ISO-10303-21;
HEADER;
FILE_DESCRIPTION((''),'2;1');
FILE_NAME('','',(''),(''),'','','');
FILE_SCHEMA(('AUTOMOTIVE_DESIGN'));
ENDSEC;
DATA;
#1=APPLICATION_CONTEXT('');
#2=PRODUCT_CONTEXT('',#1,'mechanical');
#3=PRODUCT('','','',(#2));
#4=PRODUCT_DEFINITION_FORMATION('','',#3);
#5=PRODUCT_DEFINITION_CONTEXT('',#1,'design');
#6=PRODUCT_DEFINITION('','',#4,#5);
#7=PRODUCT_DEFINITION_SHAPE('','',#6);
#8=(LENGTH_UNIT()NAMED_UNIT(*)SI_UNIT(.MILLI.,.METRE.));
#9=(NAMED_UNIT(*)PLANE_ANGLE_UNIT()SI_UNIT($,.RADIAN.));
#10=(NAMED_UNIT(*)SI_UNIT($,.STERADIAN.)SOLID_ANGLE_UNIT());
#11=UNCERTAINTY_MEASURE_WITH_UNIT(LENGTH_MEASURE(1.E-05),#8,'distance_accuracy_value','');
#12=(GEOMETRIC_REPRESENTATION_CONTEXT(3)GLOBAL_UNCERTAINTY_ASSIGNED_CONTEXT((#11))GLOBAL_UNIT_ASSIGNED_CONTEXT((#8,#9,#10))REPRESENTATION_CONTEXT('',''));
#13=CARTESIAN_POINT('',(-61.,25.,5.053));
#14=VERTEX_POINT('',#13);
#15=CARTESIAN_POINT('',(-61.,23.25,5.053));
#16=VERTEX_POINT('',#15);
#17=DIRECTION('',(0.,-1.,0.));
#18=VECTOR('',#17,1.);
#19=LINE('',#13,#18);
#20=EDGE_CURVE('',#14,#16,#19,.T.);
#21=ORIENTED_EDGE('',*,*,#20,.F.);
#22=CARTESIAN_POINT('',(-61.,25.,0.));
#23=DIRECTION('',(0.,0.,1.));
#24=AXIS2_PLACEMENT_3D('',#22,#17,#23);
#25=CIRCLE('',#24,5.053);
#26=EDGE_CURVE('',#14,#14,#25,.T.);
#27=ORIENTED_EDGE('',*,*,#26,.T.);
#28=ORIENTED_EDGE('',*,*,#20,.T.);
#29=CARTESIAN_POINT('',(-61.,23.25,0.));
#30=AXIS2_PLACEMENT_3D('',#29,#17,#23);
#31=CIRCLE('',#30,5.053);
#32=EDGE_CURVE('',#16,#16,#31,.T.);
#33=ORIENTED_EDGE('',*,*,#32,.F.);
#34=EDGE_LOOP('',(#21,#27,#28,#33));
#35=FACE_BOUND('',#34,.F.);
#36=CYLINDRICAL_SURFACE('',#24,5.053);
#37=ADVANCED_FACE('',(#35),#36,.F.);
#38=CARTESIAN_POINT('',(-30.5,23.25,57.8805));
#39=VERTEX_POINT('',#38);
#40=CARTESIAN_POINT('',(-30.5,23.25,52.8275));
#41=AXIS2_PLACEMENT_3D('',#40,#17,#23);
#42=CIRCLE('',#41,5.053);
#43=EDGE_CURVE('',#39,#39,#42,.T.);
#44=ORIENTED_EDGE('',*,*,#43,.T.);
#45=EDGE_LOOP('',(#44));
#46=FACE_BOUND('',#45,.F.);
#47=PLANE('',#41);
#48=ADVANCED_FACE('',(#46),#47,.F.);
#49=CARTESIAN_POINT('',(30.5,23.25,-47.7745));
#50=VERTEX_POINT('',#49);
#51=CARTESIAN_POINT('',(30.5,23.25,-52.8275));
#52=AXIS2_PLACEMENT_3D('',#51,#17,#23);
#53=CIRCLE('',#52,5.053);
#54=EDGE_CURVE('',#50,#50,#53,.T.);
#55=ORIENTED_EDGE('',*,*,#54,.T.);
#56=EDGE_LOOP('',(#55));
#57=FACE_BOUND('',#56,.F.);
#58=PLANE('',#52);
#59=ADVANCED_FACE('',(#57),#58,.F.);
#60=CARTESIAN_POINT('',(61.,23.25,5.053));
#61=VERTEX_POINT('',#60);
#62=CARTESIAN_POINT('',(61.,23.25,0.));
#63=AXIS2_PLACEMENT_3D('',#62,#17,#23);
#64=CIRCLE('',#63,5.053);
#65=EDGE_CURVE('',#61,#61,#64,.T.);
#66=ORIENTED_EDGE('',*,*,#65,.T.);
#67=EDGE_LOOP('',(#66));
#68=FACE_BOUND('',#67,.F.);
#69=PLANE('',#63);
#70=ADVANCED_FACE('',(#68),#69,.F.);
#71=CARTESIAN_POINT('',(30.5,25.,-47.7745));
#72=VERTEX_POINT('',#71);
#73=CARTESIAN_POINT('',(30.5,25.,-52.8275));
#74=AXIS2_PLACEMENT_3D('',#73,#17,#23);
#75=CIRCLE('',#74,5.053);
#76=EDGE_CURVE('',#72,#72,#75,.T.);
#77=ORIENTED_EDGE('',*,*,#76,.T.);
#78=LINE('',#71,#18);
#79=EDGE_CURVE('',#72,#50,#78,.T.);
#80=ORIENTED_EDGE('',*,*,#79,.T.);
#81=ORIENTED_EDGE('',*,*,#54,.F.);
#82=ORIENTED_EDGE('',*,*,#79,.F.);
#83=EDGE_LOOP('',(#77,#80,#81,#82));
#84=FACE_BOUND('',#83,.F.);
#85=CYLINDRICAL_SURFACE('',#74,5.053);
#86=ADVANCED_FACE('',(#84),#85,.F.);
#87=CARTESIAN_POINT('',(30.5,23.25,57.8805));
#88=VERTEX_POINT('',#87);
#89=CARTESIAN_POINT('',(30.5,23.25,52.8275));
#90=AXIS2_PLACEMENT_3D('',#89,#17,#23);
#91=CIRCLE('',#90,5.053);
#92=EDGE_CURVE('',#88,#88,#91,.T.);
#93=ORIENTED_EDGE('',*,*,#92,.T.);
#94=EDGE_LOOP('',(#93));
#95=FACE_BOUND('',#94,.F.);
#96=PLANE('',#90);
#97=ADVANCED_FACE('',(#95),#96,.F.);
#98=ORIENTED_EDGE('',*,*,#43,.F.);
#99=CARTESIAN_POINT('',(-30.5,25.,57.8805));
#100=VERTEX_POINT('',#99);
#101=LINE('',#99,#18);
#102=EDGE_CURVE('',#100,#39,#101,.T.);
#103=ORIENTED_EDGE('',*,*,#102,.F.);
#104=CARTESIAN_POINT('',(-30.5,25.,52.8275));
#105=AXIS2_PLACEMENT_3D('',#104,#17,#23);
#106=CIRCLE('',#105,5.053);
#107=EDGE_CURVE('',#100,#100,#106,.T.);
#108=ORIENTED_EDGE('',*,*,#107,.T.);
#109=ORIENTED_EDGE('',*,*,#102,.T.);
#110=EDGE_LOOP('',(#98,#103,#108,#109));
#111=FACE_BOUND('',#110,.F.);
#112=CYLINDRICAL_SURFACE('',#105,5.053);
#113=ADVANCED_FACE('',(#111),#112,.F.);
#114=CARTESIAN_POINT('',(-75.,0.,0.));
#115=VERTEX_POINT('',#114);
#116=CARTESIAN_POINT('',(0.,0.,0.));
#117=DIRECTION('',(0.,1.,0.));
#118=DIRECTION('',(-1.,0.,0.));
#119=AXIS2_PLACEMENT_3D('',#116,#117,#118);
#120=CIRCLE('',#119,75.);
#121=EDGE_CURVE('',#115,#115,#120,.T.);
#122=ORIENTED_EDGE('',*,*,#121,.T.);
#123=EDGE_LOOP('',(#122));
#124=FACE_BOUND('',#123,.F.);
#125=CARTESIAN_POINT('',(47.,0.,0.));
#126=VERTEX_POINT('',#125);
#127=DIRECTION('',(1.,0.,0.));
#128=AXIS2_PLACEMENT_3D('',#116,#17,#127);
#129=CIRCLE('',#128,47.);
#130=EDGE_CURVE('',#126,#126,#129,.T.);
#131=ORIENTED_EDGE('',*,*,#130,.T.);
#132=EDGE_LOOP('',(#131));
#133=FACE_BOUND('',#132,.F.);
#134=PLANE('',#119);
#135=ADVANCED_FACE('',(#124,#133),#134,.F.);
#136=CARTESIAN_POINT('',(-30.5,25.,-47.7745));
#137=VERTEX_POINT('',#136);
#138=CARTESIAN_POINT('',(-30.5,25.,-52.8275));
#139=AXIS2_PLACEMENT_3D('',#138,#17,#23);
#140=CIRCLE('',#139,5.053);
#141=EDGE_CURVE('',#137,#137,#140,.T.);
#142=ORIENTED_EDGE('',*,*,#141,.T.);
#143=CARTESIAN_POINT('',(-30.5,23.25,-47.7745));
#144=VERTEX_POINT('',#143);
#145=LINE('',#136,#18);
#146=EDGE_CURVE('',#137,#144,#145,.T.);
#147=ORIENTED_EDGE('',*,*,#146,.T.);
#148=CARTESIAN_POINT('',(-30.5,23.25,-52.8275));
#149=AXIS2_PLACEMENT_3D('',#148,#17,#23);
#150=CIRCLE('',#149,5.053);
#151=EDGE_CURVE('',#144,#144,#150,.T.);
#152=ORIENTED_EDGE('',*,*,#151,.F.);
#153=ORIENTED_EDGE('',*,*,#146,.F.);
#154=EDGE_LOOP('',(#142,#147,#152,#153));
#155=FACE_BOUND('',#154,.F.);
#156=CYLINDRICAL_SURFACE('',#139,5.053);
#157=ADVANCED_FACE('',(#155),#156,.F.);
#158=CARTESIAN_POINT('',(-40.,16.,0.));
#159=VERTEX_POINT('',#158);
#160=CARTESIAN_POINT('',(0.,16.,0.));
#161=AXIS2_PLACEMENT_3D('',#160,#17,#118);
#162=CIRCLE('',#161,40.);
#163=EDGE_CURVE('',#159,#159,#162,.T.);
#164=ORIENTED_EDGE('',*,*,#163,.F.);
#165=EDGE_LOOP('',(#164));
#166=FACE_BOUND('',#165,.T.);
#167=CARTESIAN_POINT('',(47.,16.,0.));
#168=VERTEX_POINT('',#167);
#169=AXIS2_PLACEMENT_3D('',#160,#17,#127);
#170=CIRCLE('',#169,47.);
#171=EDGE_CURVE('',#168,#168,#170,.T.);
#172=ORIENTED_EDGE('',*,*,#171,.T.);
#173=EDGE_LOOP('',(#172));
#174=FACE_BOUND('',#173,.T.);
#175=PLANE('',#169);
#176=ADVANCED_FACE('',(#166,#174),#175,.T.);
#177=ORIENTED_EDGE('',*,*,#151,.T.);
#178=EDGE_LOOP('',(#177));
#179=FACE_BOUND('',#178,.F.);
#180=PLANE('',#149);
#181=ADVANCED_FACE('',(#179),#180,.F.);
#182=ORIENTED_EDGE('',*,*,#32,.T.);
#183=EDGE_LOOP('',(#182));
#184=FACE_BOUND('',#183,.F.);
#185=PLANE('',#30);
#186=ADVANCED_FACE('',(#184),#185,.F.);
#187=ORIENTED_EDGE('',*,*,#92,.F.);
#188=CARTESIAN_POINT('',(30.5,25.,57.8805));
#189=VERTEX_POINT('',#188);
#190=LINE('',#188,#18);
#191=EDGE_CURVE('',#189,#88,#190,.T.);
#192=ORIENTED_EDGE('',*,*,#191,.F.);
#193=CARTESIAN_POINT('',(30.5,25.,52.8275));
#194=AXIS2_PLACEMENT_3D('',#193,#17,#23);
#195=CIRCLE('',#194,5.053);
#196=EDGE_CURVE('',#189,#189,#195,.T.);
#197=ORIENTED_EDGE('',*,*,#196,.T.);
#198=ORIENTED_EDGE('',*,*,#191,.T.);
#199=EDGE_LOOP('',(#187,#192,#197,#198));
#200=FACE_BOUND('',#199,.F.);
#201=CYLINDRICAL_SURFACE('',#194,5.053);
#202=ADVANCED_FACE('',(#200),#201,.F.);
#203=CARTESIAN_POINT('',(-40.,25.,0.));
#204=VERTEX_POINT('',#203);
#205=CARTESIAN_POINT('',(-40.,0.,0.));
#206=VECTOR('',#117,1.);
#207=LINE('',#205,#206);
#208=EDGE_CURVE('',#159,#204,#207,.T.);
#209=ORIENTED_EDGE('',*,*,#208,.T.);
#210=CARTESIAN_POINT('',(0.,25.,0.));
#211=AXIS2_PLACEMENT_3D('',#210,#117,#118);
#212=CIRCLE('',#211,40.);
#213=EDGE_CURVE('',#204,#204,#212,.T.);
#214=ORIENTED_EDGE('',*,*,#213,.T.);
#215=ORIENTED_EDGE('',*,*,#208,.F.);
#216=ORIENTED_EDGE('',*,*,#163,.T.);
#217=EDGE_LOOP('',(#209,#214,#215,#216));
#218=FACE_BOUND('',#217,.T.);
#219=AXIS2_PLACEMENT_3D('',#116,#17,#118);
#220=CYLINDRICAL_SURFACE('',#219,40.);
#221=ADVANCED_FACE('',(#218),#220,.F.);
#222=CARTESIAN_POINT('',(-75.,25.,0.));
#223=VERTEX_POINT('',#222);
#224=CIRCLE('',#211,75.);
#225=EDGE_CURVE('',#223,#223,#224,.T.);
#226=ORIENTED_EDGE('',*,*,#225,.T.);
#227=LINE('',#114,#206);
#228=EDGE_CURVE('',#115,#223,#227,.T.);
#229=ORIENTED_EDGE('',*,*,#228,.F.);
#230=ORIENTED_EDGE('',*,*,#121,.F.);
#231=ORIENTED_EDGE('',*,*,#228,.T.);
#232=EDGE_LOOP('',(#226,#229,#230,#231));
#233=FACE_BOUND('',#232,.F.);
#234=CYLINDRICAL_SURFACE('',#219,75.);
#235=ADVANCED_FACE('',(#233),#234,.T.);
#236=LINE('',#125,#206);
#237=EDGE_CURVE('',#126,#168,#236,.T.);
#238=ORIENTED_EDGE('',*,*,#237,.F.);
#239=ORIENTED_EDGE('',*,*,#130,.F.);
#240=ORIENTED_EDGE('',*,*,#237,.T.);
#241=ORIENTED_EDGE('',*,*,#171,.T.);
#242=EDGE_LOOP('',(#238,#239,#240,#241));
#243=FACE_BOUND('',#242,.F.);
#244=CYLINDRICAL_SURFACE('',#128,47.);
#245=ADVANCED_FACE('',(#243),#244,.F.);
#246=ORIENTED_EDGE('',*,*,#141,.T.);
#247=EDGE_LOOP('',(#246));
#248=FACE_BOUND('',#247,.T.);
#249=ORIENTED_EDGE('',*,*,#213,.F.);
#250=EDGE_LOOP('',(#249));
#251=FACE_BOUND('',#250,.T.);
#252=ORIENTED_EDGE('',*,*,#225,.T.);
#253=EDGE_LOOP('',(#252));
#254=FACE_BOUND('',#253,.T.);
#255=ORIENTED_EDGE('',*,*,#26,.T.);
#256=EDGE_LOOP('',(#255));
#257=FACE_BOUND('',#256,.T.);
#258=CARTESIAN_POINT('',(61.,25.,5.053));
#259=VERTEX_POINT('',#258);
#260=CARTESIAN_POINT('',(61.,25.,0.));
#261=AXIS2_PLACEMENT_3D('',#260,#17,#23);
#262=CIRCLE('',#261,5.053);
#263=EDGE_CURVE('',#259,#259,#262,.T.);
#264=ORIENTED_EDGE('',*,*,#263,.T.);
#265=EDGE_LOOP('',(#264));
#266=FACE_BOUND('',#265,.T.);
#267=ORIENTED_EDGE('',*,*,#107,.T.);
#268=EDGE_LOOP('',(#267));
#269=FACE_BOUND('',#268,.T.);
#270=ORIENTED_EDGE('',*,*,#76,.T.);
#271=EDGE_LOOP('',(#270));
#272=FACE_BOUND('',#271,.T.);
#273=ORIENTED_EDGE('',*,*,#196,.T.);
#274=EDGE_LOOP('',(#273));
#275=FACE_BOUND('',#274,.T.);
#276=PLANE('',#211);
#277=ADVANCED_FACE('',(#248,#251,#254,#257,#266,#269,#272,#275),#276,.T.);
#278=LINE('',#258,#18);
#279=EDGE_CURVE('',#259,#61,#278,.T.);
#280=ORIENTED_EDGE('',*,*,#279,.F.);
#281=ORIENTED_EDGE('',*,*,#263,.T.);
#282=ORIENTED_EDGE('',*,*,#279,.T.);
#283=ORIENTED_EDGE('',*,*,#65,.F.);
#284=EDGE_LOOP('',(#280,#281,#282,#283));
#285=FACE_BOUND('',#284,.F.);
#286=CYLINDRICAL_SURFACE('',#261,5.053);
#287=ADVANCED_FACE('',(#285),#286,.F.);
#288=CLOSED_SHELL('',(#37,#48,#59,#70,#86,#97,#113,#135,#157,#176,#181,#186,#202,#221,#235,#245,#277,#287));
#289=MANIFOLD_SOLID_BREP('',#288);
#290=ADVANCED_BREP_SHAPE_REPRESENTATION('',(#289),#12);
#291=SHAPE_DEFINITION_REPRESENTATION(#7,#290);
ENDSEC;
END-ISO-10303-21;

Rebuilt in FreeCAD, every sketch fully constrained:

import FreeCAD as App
import Part
import Sketcher

V = App.Vector

doc = App.newDocument("Part")
params = doc.addObject("Spreadsheet::Sheet", "Params")
for row, (alias, value) in enumerate([
    ("sketch1_diameter", "150 mm"),
    ("sketch1_diameter2", "80 mm"),
    ("pad1_length", "25 mm"),
    ("sketch2_diameter", "94 mm"),
    ("pocket1_length", "16 mm"),
    ("hole_diameter", "10.106 mm"),
    ("hole_depth", "1.75 mm"),
], start=1):
    params.set(f"A{row}", alias)
    params.set(f"B{row}", "=" + value)
    params.setAlias(f"B{row}", alias)

body = doc.addObject("PartDesign::Body", "Body")

# Sketch on XZ plane
sketch1 = body.newObject("Sketcher::SketchObject", "Sketch")
sketch1.AttachmentSupport = (doc.getObject("XZ_Plane"), [""])
sketch1.MapMode = "FlatFace"
sketch1.addGeometry(Part.Circle(V(0, 0, 0), V(0, 0, 1), 75), False)
sketch1.addGeometry(Part.Circle(V(0, 0, 0), V(0, 0, 1), 40), False)
sketch1.addConstraint(Sketcher.Constraint("Coincident", 0, 3, -1, 1))
sketch1.addConstraint(Sketcher.Constraint("Coincident", 1, 3, -1, 1))
sketch1.addConstraint(Sketcher.Constraint("Diameter", 0, 150.0))
sketch1.addConstraint(Sketcher.Constraint("Diameter", 1, 80.0))
sketch1.setExpression("Constraints[2]", "Params.sketch1_diameter")
sketch1.setExpression("Constraints[3]", "Params.sketch1_diameter2")
pad1 = body.newObject("PartDesign::Pad", "Pad")
pad1.Profile = sketch1
pad1.setExpression("Length", "Params.pad1_length")
pad1.Reversed = True

# Sketch on XZ plane
sketch2 = body.newObject("Sketcher::SketchObject", "Sketch001")
sketch2.AttachmentSupport = (doc.getObject("XZ_Plane"), [""])
sketch2.MapMode = "FlatFace"
sketch2.addGeometry(Part.Circle(V(0, 0, 0), V(0, 0, 1), 47), False)
sketch2.addConstraint(Sketcher.Constraint("Coincident", 0, 3, -1, 1))
sketch2.addConstraint(Sketcher.Constraint("Diameter", 0, 94.0))
sketch2.setExpression("Constraints[1]", "Params.sketch2_diameter")
pocket1 = body.newObject("PartDesign::Pocket", "Pocket")
pocket1.Profile = sketch2
pocket1.setExpression("Length", "Params.pocket1_length")

# Sketch on XZ plane
sketch3 = body.newObject("Sketcher::SketchObject", "Sketch002")
sketch3.AttachmentSupport = (doc.getObject("XZ_Plane"), [""])
sketch3.MapMode = "FlatFace"
sketch3.AttachmentOffset = App.Placement(V(0, 0, -25), App.Rotation())
sketch3.addGeometry(Part.Circle(V(61, 0, 0), V(0, 0, 1), 5), False)
sketch3.addGeometry(Part.Circle(V(30, -53, 0), V(0, 0, 1), 5), False)
sketch3.addGeometry(Part.Circle(V(-30, -53, 0), V(0, 0, 1), 5), False)
sketch3.addGeometry(Part.Circle(V(-61, 0, 0), V(0, 0, 1), 5), False)
sketch3.addGeometry(Part.Circle(V(-30, 53, 0), V(0, 0, 1), 5), False)
sketch3.addGeometry(Part.Circle(V(30, 53, 0), V(0, 0, 1), 5), False)
sketch3.addConstraint(Sketcher.Constraint("Equal", 0, 1))
sketch3.addConstraint(Sketcher.Constraint("Equal", 1, 2))
sketch3.addConstraint(Sketcher.Constraint("Equal", 2, 3))
sketch3.addConstraint(Sketcher.Constraint("Equal", 3, 4))
sketch3.addConstraint(Sketcher.Constraint("Equal", 4, 5))
sketch3.addConstraint(Sketcher.Constraint("Symmetric", 0, 3, 3, 3, -1, 1))
sketch3.addConstraint(Sketcher.Constraint("Symmetric", 1, 3, 4, 3, -1, 1))
sketch3.addConstraint(Sketcher.Constraint("Symmetric", 2, 3, 5, 3, -1, 1))
sketch3.addConstraint(Sketcher.Constraint("Symmetric", 1, 3, 2, 3, -2))
sketch3.addConstraint(Sketcher.Constraint("PointOnObject", 0, 3, -1))
sketch3.addConstraint(Sketcher.Constraint("Diameter", 0, 10.106))
sketch3.addConstraint(Sketcher.Constraint("DistanceX", -1, 1, 0, 3, 61.0))
sketch3.addConstraint(Sketcher.Constraint("DistanceX", 2, 3, 1, 3, 61.0))
sketch3.addConstraint(Sketcher.Constraint("DistanceY", 2, 3, 4, 3, 105.655))
doc.recompute()
hole = body.newObject("PartDesign::Hole", "Hole")
hole.Profile = sketch3
hole.ThreadType = "None"
hole.setExpression("Diameter", "Params.hole_diameter")
hole.DepthType = "Dimension"
hole.setExpression("Depth", "Params.hole_depth")
hole.DrillPoint = "Flat"
hole.Reversed = True

doc.recompute()
